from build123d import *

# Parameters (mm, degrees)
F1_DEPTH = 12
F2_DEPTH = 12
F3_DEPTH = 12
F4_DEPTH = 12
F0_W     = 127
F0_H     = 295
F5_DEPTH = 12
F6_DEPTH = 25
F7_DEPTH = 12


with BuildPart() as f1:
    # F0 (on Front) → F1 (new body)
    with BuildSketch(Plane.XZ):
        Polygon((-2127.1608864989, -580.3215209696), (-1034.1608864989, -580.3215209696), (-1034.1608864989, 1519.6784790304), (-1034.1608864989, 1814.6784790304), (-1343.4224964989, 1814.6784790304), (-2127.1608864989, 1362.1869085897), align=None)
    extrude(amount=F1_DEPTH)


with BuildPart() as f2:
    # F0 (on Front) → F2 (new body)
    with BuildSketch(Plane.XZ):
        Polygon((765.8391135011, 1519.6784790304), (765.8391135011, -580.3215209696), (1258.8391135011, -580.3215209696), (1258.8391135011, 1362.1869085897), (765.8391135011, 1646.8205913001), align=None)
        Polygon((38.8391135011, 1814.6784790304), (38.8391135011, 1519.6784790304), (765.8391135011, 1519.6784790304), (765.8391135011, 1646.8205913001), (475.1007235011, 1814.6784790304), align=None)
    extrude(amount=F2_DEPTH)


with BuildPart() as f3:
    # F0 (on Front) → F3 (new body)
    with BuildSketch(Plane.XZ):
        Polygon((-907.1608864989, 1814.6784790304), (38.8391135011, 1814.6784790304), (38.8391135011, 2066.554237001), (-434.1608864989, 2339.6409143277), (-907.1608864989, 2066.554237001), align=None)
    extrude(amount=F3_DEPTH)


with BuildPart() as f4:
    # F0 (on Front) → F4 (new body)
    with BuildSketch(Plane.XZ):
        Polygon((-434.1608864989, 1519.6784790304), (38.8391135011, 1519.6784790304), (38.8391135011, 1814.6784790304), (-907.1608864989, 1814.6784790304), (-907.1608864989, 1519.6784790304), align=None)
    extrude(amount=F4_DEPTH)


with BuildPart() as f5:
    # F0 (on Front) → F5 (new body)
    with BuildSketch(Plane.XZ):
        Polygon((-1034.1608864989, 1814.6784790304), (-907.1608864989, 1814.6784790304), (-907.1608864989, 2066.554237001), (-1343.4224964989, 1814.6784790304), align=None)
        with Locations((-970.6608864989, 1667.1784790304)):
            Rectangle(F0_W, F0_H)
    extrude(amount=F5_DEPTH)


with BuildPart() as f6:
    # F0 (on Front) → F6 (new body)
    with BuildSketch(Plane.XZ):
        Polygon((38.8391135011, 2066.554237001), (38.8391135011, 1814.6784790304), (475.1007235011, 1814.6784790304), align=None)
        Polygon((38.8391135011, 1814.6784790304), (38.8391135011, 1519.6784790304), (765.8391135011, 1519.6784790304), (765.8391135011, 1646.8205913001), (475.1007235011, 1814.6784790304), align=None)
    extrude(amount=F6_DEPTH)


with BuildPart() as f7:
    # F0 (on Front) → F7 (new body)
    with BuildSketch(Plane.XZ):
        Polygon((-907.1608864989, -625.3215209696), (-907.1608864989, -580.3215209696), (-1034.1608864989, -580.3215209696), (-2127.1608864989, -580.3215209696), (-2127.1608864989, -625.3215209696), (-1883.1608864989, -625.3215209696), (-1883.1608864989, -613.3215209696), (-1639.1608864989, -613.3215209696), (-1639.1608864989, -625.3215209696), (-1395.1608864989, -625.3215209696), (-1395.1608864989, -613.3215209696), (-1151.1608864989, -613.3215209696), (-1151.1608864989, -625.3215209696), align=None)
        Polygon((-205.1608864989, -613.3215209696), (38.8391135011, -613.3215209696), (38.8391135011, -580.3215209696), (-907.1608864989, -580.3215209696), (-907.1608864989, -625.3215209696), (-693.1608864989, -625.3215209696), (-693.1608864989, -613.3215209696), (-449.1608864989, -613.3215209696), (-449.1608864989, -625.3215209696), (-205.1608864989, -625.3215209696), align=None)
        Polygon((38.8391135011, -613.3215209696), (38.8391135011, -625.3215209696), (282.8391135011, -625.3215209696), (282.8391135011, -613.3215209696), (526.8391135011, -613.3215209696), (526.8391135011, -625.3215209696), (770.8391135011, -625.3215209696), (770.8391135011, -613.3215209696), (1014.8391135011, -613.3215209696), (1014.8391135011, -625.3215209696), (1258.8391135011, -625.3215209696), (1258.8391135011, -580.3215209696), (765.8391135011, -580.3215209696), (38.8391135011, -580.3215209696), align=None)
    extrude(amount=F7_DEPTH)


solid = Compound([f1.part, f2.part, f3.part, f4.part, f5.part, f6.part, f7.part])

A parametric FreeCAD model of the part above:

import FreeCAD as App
import Part
import Sketcher
Q = App.Units.Quantity


def add_polygon(sketch, points):
    """Adds a closed chain of lines whose ends are joined by coincident constraints."""
    first, n = sketch.GeometryCount, len(points)
    for a, b in zip(points, points[1:] + points[:1]):
        sketch.addGeometry(Part.LineSegment(App.Vector(*a, 0), App.Vector(*b, 0)), False)
    for i in range(n):
        sketch.addConstraint(Sketcher.Constraint("Coincident", first + i, 2, first + (i + 1) % n, 1))

doc = App.newDocument("Part")
body = doc.addObject("PartDesign::Body", "Body")

# Sketch on XZ plane
sketch1 = body.newObject("Sketcher::SketchObject", "Sketch")
sketch1.AttachmentSupport = (doc.getObject("XZ_Plane"), [""])
sketch1.MapMode = "FlatFace"
add_polygon(sketch1, [(-2127.160886, -580.321521), (-1034.160886, -580.321521), (-1034.160886, 1814.678479), (-1343.422496, 1814.678479), (-2127.160886, 1362.186909)])  # lines 0-4
sketch1.addConstraint([
    Sketcher.Constraint("Horizontal", 0),
    Sketcher.Constraint("Vertical", 1),
    Sketcher.Constraint("Horizontal", 2),
    Sketcher.Constraint("Vertical", 4),
    Sketcher.Constraint("DistanceX", 0, 1, 0, 2, 1093.0),
    Sketcher.Constraint("DistanceY", 1, 1, 1, 2, 2395.0),
    Sketcher.Constraint("Angle", 3, Q("-150 deg")),
    Sketcher.Constraint("DistanceX", 2, 2, 2, 1, 309.26161),
    Sketcher.Constraint("DistanceY", 0, 2, -1, 1, 580.321521),
    Sketcher.Constraint("DistanceX", 0, 2, -1, 1, 1034.160886),
])
pad1 = body.newObject("PartDesign::Pad", "Pad")
pad1.Profile = sketch1
pad1.Length = 12
body2 = doc.addObject("PartDesign::Body", "Body001")

# Sketch on XZ plane
sketch2 = body2.newObject("Sketcher::SketchObject", "Sketch001")
sketch2.AttachmentSupport = (doc.getObject("XZ_Plane001"), [""])
sketch2.MapMode = "FlatFace"
add_polygon(sketch2, [(765.839114, -580.321521), (1258.839114, -580.321521), (1258.839114, 1362.186909), (475.100724, 1814.678479), (38.839114, 1814.678479), (38.839114, 1519.678479), (765.839114, 1519.678479)])  # lines 0-6
sketch2.addConstraint([
    Sketcher.Constraint("Horizontal", 0),
    Sketcher.Constraint("Vertical", 1),
    Sketcher.Constraint("Horizontal", 3),
    Sketcher.Constraint("Vertical", 4),
    Sketcher.Constraint("Horizontal", 5),
    Sketcher.Constraint("Vertical", 6),
    Sketcher.Constraint("DistanceX", 0, 1, 0, 2, 493.0),
    Sketcher.Constraint("DistanceX", 5, 1, 5, 2, 727.0),
    Sketcher.Constraint("DistanceY", 4, 2, 4, 1, 295.0),
    Sketcher.Constraint("DistanceY", 6, 2, 6, 1, 2100.0),
    Sketcher.Constraint("Angle", 2, Q("150 deg")),
    Sketcher.Constraint("DistanceX", 3, 2, 3, 1, 436.26161),
    Sketcher.Constraint("DistanceY", 0, 2, -1, 1, 580.321521),
    Sketcher.Constraint("DistanceX", -1, 1, 0, 2, 1258.839114),
])
pad2 = body2.newObject("PartDesign::Pad", "Pad001")
pad2.Profile = sketch2
pad2.Length = 12
body3 = doc.addObject("PartDesign::Body", "Body002")

# Sketch on XZ plane
sketch3 = body3.newObject("Sketcher::SketchObject", "Sketch002")
sketch3.AttachmentSupport = (doc.getObject("XZ_Plane002"), [""])
sketch3.MapMode = "FlatFace"
add_polygon(sketch3, [(-907.160886, 1814.678479), (38.839114, 1814.678479), (38.839114, 2066.554237), (-434.160886, 2339.640914), (-907.160886, 2066.554237)])  # lines 0-4
sketch3.addConstraint([
    Sketcher.Constraint("Horizontal", 0),
    Sketcher.Constraint("Vertical", 1),
    Sketcher.Constraint("Vertical", 4),
    Sketcher.Constraint("Horizontal", 1, 2, 3, 2),
    Sketcher.Constraint("Equal", 2, 3),
    Sketcher.Constraint("DistanceX", 0, 1, 0, 2, 946.0),
    Sketcher.Constraint("Angle", 2, Q("150 deg")),
    Sketcher.Constraint("DistanceY", 1, 1, 1, 2, 251.875758),
    Sketcher.Constraint("DistanceY", -1, 1, 0, 2, 1814.678479),
    Sketcher.Constraint("DistanceX", -1, 1, 0, 2, 38.839114),
])
pad3 = body3.newObject("PartDesign::Pad", "Pad002")
pad3.Profile = sketch3
pad3.Length = 12
body4 = doc.addObject("PartDesign::Body", "Body003")

# Sketch on XZ plane
sketch4 = body4.newObject("Sketcher::SketchObject", "Sketch003")
sketch4.AttachmentSupport = (doc.getObject("XZ_Plane003"), [""])
sketch4.MapMode = "FlatFace"
add_polygon(sketch4, [(38.839114, 1519.678479), (38.839114, 1814.678479), (-907.160886, 1814.678479), (-907.160886, 1519.678479)])  # lines 0-3
sketch4.addConstraint([
    Sketcher.Constraint("Vertical", 0),
    Sketcher.Constraint("Horizontal", 1),
    Sketcher.Constraint("Vertical", 2),
    Sketcher.Constraint("Horizontal", 3),
    Sketcher.Constraint("DistanceX", 1, 2, 1, 1, 946.0),
    Sketcher.Constraint("DistanceY", 0, 1, 0, 2, 295.0),
    Sketcher.Constraint("DistanceY", -1, 1, 0, 2, 1814.678479),
    Sketcher.Constraint("DistanceX", -1, 1, 0, 2, 38.839114),
])
pad4 = body4.newObject("PartDesign::Pad", "Pad003")
pad4.Profile = sketch4
pad4.Length = 12
body5 = doc.addObject("PartDesign::Body", "Body004")

# Sketch on XZ plane
sketch5 = body5.newObject("Sketcher::SketchObject", "Sketch004")
sketch5.AttachmentSupport = (doc.getObject("XZ_Plane004"), [""])
sketch5.MapMode = "FlatFace"
add_polygon(sketch5, [(-907.160886, 2066.554237), (-1343.422496, 1814.678479), (-1034.160886, 1814.678479), (-1034.160886, 1519.678479), (-907.160886, 1519.678479)])  # lines 0-4
sketch5.addConstraint([
    Sketcher.Constraint("Horizontal", 1),
    Sketcher.Constraint("Vertical", 2),
    Sketcher.Constraint("Horizontal", 3),
    Sketcher.Constraint("Vertical", 4),
    Sketcher.Constraint("DistanceX", 3, 1, 3, 2, 127.0),
    Sketcher.Constraint("DistanceY", 2, 2, 2, 1, 295.0),
    Sketcher.Constraint("Angle", 0, Q("-150 deg")),
    Sketcher.Constraint("DistanceX", 1, 1, 1, 2, 309.26161),
    Sketcher.Constraint("DistanceY", -1, 1, 0, 2, 1814.678479),
    Sketcher.Constraint("DistanceX", 0, 2, -1, 1, 1343.422496),
])
pad5 = body5.newObject("PartDesign::Pad", "Pad004")
pad5.Profile = sketch5
pad5.Length = 12
body6 = doc.addObject("PartDesign::Body", "Body005")

# Sketch on XZ plane
sketch6 = body6.newObject("Sketcher::SketchObject", "Sketch005")
sketch6.AttachmentSupport = (doc.getObject("XZ_Plane005"), [""])
sketch6.MapMode = "FlatFace"
add_polygon(sketch6, [(38.839114, 2066.554237), (38.839114, 1519.678479), (765.839114, 1519.678479), (765.839114, 1646.820591)])  # lines 0-3
sketch6.addConstraint([
    Sketcher.Constraint("Vertical", 0),
    Sketcher.Constraint("Horizontal", 1),
    Sketcher.Constraint("Vertical", 2),
    Sketcher.Constraint("DistanceX", 1, 1, 1, 2, 727.0),
    Sketcher.Constraint("Angle", 3, Q("150 deg")),
    Sketcher.Constraint("DistanceY", 0, 2, 0, 1, 546.875758),
    Sketcher.Constraint("DistanceY", -1, 1, 0, 2, 1519.678479),
    Sketcher.Constraint("DistanceX", -1, 1, 0, 2, 38.839114),
])
pad6 = body6.newObject("PartDesign::Pad", "Pad005")
pad6.Profile = sketch6
pad6.Length = 25
body7 = doc.addObject("PartDesign::Body", "Body006")

# Sketch on XZ plane
sketch7 = body7.newObject("Sketcher::SketchObject", "Sketch006")
sketch7.AttachmentSupport = (doc.getObject("XZ_Plane006"), [""])
sketch7.MapMode = "FlatFace"
add_polygon(sketch7, [(-2127.160886, -580.321521), (-2127.160886, -625.321521), (-1883.160886, -625.321521), (-1883.160886, -613.321521), (-1639.160886, -613.321521), (-1639.160886, -625.321521), (-1395.160886, -625.321521), (-1395.160886, -613.321521), (-1151.160886, -613.321521), (-1151.160886, -625.321521), (-693.160886, -625.321521), (-693.160886, -613.321521), (-449.160886, -613.321521), (-449.160886, -625.321521), (-205.160886, -625.321521), (-205.160886, -613.321521), (38.839114, -613.321521), (38.839114, -625.321521), (282.839114, -625.321521), (282.839114, -613.321521), (526.839114, -613.321521), (526.839114, -625.321521), (770.839114, -625.321521), (770.839114, -613.321521), (1014.839114, -613.321521), (1014.839114, -625.321521), (1258.839114, -625.321521), (1258.839114, -580.321521)])  # lines 0-27
sketch7.addConstraint([
    Sketcher.Constraint("Vertical", 0),
    Sketcher.Constraint("Horizontal", 1),
    Sketcher.Constraint("Vertical", 2),
    Sketcher.Constraint("Horizontal", 3),
    Sketcher.Constraint("Vertical", 4),
    Sketcher.Constraint("Horizontal", 5),
    Sketcher.Constraint("Vertical", 6),
    Sketcher.Constraint("Horizontal", 7),
    Sketcher.Constraint("Vertical", 8),
    Sketcher.Constraint("Horizontal", 9),
    Sketcher.Constraint("Vertical", 10),
    Sketcher.Constraint("Horizontal", 11),
    Sketcher.Constraint("Vertical", 12),
    Sketcher.Constraint("Horizontal", 13),
    Sketcher.Constraint("Vertical", 14),
    Sketcher.Constraint("Horizontal", 15),
    Sketcher.Constraint("Vertical", 16),
    Sketcher.Constraint("Horizontal", 17),
    Sketcher.Constraint("Vertical", 18),
    Sketcher.Constraint("Horizontal", 19),
    Sketcher.Constraint("Vertical", 20),
    Sketcher.Constraint("Horizontal", 21),
    Sketcher.Constraint("Vertical", 22),
    Sketcher.Constraint("Horizontal", 23),
    Sketcher.Constraint("Vertical", 24),
    Sketcher.Constraint("Horizontal", 25),
    Sketcher.Constraint("Vertical", 26),
    Sketcher.Constraint("Horizontal", 27),
    Sketcher.Constraint("Horizontal", 1, 2, 4, 2),
    Sketcher.Constraint("Horizontal", 3, 2, 6, 2),
    Sketcher.Constraint("Horizontal", 5, 2, 8, 2),
    Sketcher.Constraint("Horizontal", 7, 2, 10, 2),
    Sketcher.Constraint("Horizontal", 9, 2, 12, 2),
    Sketcher.Constraint("Horizontal", 11, 2, 14, 2),
    Sketcher.Constraint("Horizontal", 13, 2, 16, 2),
    Sketcher.Constraint("Horizontal", 15, 2, 18, 2),
    Sketcher.Constraint("Horizontal", 17, 2, 20, 2),
    Sketcher.Constraint("Horizontal", 19, 2, 22, 2),
    Sketcher.Constraint("Horizontal", 21, 2, 24, 2),
    Sketcher.Constraint("Equal", 1, 3),
    Sketcher.Constraint("Equal", 3, 5),
    Sketcher.Constraint("Equal", 5, 7),
    Sketcher.Constraint("Equal", 7, 11),
    Sketcher.Constraint("Equal", 11, 13),
    Sketcher.Constraint("Equal", 13, 15),
    Sketcher.Constraint("Equal", 15, 17),
    Sketcher.Constraint("Equal", 17, 19),
    Sketcher.Constraint("Equal", 19, 21),
    Sketcher.Constraint("Equal", 21, 23),
    Sketcher.Constraint("Equal", 23, 25),
    Sketcher.Constraint("DistanceX", 1, 1, 1, 2, 244.0),
    Sketcher.Constraint("DistanceX", 9, 1, 9, 2, 458.0),
    Sketcher.Constraint("DistanceY", 0, 2, 0, 1, 45.0),
    Sketcher.Constraint("DistanceY", 2, 1, 2, 2, 12.0),
    Sketcher.Constraint("DistanceY", 0, 2, -1, 1, 625.321521),
    Sketcher.Constraint("DistanceX", 0, 2, -1, 1, 2127.160886),
])
pad7 = body7.newObject("PartDesign::Pad", "Pad006")
pad7.Profile = sketch7
pad7.Length = 12

doc.recompute()
